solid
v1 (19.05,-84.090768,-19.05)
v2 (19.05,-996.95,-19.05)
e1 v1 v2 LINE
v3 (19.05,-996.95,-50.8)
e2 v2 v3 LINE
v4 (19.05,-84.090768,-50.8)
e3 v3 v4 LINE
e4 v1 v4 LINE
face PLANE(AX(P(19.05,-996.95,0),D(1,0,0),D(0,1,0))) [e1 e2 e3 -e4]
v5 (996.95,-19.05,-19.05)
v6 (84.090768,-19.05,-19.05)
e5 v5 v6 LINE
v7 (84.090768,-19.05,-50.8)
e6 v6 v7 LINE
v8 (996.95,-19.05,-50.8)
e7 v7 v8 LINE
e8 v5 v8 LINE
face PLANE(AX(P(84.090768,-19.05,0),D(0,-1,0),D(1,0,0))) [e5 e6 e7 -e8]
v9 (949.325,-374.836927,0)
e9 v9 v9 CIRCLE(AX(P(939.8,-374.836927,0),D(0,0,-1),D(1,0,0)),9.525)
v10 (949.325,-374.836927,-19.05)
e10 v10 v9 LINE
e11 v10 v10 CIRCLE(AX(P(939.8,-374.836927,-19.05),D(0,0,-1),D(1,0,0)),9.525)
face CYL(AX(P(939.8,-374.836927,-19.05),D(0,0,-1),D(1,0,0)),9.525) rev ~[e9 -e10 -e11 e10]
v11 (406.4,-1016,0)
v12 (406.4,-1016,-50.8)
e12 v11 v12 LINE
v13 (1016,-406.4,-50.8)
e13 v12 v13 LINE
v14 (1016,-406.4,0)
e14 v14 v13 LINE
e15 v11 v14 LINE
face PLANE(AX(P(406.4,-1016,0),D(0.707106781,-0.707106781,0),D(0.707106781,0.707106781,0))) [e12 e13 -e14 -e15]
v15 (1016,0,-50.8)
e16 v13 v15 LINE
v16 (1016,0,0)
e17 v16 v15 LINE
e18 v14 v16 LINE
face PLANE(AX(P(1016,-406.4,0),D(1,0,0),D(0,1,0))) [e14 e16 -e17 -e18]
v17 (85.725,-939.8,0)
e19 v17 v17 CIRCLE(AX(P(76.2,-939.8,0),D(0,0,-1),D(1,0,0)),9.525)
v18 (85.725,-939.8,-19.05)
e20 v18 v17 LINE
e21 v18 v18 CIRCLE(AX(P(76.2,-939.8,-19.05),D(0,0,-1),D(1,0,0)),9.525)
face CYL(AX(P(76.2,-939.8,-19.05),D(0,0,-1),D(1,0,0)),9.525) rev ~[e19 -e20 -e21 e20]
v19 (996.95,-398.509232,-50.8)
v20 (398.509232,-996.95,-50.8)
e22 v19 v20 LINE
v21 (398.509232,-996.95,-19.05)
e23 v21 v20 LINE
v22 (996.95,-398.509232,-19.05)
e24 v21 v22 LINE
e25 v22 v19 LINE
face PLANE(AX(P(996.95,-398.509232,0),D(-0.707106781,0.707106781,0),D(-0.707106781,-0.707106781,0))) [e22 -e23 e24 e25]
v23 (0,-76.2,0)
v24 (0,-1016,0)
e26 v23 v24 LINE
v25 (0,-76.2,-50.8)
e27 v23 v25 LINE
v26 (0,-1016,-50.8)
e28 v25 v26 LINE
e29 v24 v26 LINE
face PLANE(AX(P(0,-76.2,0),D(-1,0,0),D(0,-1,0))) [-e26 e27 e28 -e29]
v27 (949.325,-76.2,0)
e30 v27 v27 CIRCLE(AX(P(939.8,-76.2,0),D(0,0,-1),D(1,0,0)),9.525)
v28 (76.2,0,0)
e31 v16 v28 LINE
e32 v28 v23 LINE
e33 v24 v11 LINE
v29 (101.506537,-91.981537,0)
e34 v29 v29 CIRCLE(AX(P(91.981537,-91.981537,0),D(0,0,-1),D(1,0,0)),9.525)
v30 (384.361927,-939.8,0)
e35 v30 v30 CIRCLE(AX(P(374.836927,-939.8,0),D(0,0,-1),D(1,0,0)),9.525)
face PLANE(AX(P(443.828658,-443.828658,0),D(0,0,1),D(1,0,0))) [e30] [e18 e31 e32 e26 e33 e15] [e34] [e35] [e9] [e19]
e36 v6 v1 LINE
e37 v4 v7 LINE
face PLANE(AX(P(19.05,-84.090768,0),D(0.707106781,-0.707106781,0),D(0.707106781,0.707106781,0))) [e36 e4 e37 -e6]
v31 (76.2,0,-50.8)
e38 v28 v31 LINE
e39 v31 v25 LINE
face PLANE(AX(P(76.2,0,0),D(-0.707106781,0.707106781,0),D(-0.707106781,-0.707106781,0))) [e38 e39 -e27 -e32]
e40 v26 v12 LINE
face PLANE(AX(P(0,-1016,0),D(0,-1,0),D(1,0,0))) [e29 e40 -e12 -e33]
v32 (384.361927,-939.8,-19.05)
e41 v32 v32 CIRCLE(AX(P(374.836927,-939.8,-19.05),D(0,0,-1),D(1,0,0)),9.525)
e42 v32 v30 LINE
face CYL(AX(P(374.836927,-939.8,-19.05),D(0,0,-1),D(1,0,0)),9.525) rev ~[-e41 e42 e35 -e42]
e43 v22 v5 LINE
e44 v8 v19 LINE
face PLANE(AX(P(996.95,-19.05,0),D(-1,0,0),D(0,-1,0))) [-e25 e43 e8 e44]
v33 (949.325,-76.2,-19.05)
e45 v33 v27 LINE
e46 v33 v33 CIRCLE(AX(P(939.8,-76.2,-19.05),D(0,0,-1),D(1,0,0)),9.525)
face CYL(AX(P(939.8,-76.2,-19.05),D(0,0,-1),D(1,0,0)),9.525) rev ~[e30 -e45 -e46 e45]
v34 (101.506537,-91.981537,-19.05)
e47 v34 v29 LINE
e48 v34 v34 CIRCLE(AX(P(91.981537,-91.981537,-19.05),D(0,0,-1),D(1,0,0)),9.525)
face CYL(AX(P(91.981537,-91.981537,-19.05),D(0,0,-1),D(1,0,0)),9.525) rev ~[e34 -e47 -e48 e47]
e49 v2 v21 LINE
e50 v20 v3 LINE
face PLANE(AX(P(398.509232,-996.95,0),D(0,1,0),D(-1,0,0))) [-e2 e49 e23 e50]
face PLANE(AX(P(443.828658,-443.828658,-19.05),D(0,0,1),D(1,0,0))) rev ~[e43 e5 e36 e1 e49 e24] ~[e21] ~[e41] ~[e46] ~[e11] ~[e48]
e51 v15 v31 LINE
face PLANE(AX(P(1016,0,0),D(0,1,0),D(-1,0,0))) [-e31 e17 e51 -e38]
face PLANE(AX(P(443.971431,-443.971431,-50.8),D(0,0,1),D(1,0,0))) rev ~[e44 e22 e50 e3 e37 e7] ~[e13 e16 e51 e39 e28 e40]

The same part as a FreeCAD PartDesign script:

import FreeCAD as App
import Part
import Sketcher
Q = App.Units.Quantity


def add_polygon(sketch, points):
    """Adds a closed chain of lines whose ends are joined by coincident constraints."""
    first, n = sketch.GeometryCount, len(points)
    for a, b in zip(points, points[1:] + points[:1]):
        sketch.addGeometry(Part.LineSegment(App.Vector(*a, 0), App.Vector(*b, 0)), False)
    for i in range(n):
        sketch.addConstraint(Sketcher.Constraint("Coincident", first + i, 2, first + (i + 1) % n, 1))

doc = App.newDocument("Part")
params = doc.addObject("Spreadsheet::Sheet", "Params")
for row, (alias, value) in enumerate([
    ("sketch1_width", "16 in"),
    ("sketch1_width2", "37 in"),
    ("pad1_length", "2 in"),
    ("pad2_length", "0.75 in"),
    ("sketch3_diameter", "0.75 in"),
], start=1):
    params.set(f"A{row}", alias)
    params.set(f"B{row}", "=" + value)
    params.setAlias(f"B{row}", alias)

body = doc.addObject("PartDesign::Body", "Body")

# Sketch on XY plane
sketch1 = body.newObject("Sketcher::SketchObject", "Sketch")
sketch1.AttachmentSupport = (doc.getObject("XY_Plane"), [""])
sketch1.MapMode = "FlatFace"
add_polygon(sketch1, [(0, -76), (0, -1016), (406, -1016), (1016, -406), (1016, 0), (76, 0)])  # lines 0-5
add_polygon(sketch1, [(997, -399), (399, -997), (19, -997), (19, -84), (84, -19), (997, -19)])  # lines 6-11
sketch1.addConstraint(Sketcher.Constraint("Vertical", 0))
sketch1.addConstraint(Sketcher.Constraint("Horizontal", 1))
sketch1.addConstraint(Sketcher.Constraint("Vertical", 3))
sketch1.addConstraint(Sketcher.Constraint("Horizontal", 4))
sketch1.addConstraint(Sketcher.Constraint("Horizontal", 7))
sketch1.addConstraint(Sketcher.Constraint("Vertical", 8))
sketch1.addConstraint(Sketcher.Constraint("Horizontal", 10))
sketch1.addConstraint(Sketcher.Constraint("Vertical", 11))
sketch1.addConstraint(Sketcher.Constraint("PointOnObject", 0, 2, -2))
sketch1.addConstraint(Sketcher.Constraint("PointOnObject", 3, 2, -1))
sketch1.addConstraint(Sketcher.Constraint("Parallel", 2, 5))
sketch1.addConstraint(Sketcher.Constraint("Parallel", 5, 6))
sketch1.addConstraint(Sketcher.Constraint("Parallel", 6, 9))
sketch1.addConstraint(Sketcher.Constraint("Equal", 4, 0))
sketch1.addConstraint(Sketcher.Constraint("Equal", 1, 3))
sketch1.addConstraint(Sketcher.Constraint("Equal", 10, 8))
sketch1.addConstraint(Sketcher.Constraint("DistanceX", 1, 1, 1, 2, Q("16 in")))
sketch1.addConstraint(Sketcher.Constraint("DistanceX", 4, 2, 4, 1, Q("37 in")))
sketch1.addConstraint(Sketcher.Constraint("DistanceY", 0, 2, -1, 1, Q("40 in")))
sketch1.addConstraint(Sketcher.Constraint("DistanceY", 7, 2, 9, 2, Q("38.5 in")))
sketch1.addConstraint(Sketcher.Constraint("DistanceY", 6, 2, -1, 1, Q("39.25 in")))
sketch1.addConstraint(Sketcher.Constraint("DistanceX", -1, 1, 7, 2, Q("0.75 in")))
sketch1.addConstraint(Sketcher.Constraint("DistanceX", 7, 2, 7, 1, Q("379.459232 mm")))
sketch1.addConstraint(Sketcher.Constraint("DistanceX", 10, 1, 10, 2, Q("912.859232 mm")))
sketch1.setExpression("Constraints[28]", "Params.sketch1_width")
sketch1.setExpression("Constraints[29]", "Params.sketch1_width2")
pad1 = body.newObject("PartDesign::Pad", "Pad")
pad1.Profile = sketch1
pad1.setExpression("Length", "Params.pad1_length")
pad1.Reversed = True

# Sketch on XY plane
sketch2 = body.newObject("Sketcher::SketchObject", "Sketch001")
sketch2.AttachmentSupport = (doc.getObject("XY_Plane"), [""])
sketch2.MapMode = "FlatFace"
add_polygon(sketch2, [(19, -84), (19, -997), (399, -997), (997, -399), (997, -19), (84, -19)])  # lines 0-5
sketch2.addConstraint(Sketcher.Constraint("Vertical", 0))
sketch2.addConstraint(Sketcher.Constraint("Horizontal", 1))
sketch2.addConstraint(Sketcher.Constraint("Vertical", 3))
sketch2.addConstraint(Sketcher.Constraint("Horizontal", 4))
sketch2.addConstraint(Sketcher.Constraint("Parallel", 2, 5))
sketch2.addConstraint(Sketcher.Constraint("Equal", 4, 0))
sketch2.addConstraint(Sketcher.Constraint("Equal", 1, 3))
sketch2.addConstraint(Sketcher.Constraint("DistanceX", 0, 2, 2, 2, Q("38.5 in")))
sketch2.addConstraint(Sketcher.Constraint("DistanceX", -1, 1, 0, 2, Q("0.75 in")))
sketch2.addConstraint(Sketcher.Constraint("DistanceY", 0, 2, -1, 1, Q("39.25 in")))
sketch2.addConstraint(Sketcher.Constraint("DistanceX", 1, 1, 1, 2, Q("379.459232 mm")))
sketch2.addConstraint(Sketcher.Constraint("DistanceX", 4, 2, 4, 1, Q("912.859232 mm")))
pad2 = body.newObject("PartDesign::Pad", "Pad001")
pad2.Profile = sketch2
pad2.setExpression("Length", "Params.pad2_length")
pad2.Reversed = True

# Sketch on XY plane
sketch3 = body.newObject("Sketcher::SketchObject", "Sketch002")
sketch3.AttachmentSupport = (doc.getObject("XY_Plane"), [""])
sketch3.MapMode = "FlatFace"
sketch3.AttachmentOffset = App.Placement(App.Vector(0, 0, -0.75 * 25.4), App.Rotation())
sketch3.addGeometry(Part.Circle(App.Vector(76, -940, 0), App.Vector(0, 0, 1), 10), False)
sketch3.addGeometry(Part.Circle(App.Vector(92, -92, 0), App.Vector(0, 0, 1), 10), False)
sketch3.addGeometry(Part.Circle(App.Vector(375, -940, 0), App.Vector(0, 0, 1), 10), False)
sketch3.addGeometry(Part.Circle(App.Vector(940, -375, 0), App.Vector(0, 0, 1), 10), False)
sketch3.addGeometry(Part.Circle(App.Vector(940, -76, 0), App.Vector(0, 0, 1), 10), False)
sketch3.addConstraint(Sketcher.Constraint("Equal", 0, 1))
sketch3.addConstraint(Sketcher.Constraint("Equal", 1, 2))
sketch3.addConstraint(Sketcher.Constraint("Equal", 2, 3))
sketch3.addConstraint(Sketcher.Constraint("Equal", 3, 4))
sketch3.addConstraint(Sketcher.Constraint("Horizontal", 0, 3, 2, 3))
sketch3.addConstraint(Sketcher.Constraint("Vertical", 3, 3, 4, 3))
sketch3.addConstraint(Sketcher.Constraint("Diameter", 0, Q("0.75 in")))
sketch3.addConstraint(Sketcher.Constraint("DistanceX", -1, 1, 0, 3, Q("3 in")))
sketch3.addConstraint(Sketcher.Constraint("DistanceY", 0, 3, -1, 1, Q("37 in")))
sketch3.addConstraint(Sketcher.Constraint("DistanceX", -1, 1, 3, 3, Q("37 in")))
sketch3.addConstraint(Sketcher.Constraint("DistanceY", 4, 3, -1, 1, Q("3 in")))
sketch3.addConstraint(Sketcher.Constraint("DistanceX", 1, 3, 2, 3, Q("282.85539 mm")))
sketch3.addConstraint(Sketcher.Constraint("DistanceY", 3, 3, 1, 3, Q("282.85539 mm")))
sketch3.addConstraint(Sketcher.Constraint("DistanceX", -1, 1, 1, 3, Q("91.981537 mm")))
sketch3.addConstraint(Sketcher.Constraint("DistanceY", 1, 3, -1, 1, Q("91.981537 mm")))
sketch3.setExpression("Constraints[6]", "Params.sketch3_diameter")
pocket1 = body.newObject("PartDesign::Pocket", "Pocket")
pocket1.Profile = sketch3
pocket1.Type = "ThroughAll"
pocket1.Reversed = True

doc.recompute()
